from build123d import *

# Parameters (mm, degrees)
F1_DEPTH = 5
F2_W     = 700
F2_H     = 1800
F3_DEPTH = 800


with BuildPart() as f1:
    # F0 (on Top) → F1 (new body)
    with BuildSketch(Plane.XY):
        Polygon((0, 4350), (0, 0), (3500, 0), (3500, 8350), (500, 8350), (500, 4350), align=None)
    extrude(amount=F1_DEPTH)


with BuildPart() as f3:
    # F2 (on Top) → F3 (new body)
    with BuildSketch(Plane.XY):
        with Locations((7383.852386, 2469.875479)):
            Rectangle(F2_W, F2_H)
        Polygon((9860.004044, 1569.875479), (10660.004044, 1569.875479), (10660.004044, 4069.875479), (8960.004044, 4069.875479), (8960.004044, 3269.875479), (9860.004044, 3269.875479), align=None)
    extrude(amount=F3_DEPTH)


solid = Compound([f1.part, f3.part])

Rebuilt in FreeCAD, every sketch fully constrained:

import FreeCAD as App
import Part
import Sketcher
Q = App.Units.Quantity

doc = App.newDocument("Part")
params = doc.addObject("Spreadsheet::Sheet", "Params")
for row, (alias, value) in enumerate([
    ("sketch1_width", "3500 mm"),
    ("sketch1_width2", "3000 mm"),
    ("sketch1_height", "4350 mm"),
    ("sketch1_height2", "8350 mm"),
    ("pad1_length", "5 mm"),
    ("sketch2_width", "700 mm"),
    ("sketch2_width2", "800 mm"),
    ("sketch2_width3", "1700 mm"),
    ("sketch2_height", "1800 mm"),
    ("pad2_length", "800 mm"),
], start=1):
    params.set(f"A{row}", alias)
    params.set(f"B{row}", "=" + value)
    params.setAlias(f"B{row}", alias)

body = doc.addObject("PartDesign::Body", "Body")

# Sketch on XY plane
sketch1 = body.newObject("Sketcher::SketchObject", "Sketch")
sketch1.AttachmentSupport = (doc.getObject("XY_Plane"), [""])
sketch1.MapMode = "FlatFace"
sketch1.addGeometry(Part.LineSegment(App.Vector(0, 4350, 0), App.Vector(0, 0, 0)), False)
sketch1.addGeometry(Part.LineSegment(App.Vector(0, 0, 0), App.Vector(3500, 0, 0)), False)
sketch1.addGeometry(Part.LineSegment(App.Vector(3500, 0, 0), App.Vector(3500, 8350, 0)), False)
sketch1.addGeometry(Part.LineSegment(App.Vector(3500, 8350, 0), App.Vector(500, 8350, 0)), False)
sketch1.addGeometry(Part.LineSegment(App.Vector(500, 8350, 0), App.Vector(500, 4350, 0)), False)
sketch1.addGeometry(Part.LineSegment(App.Vector(500, 4350, 0), App.Vector(0, 4350, 0)), False)
sketch1.addConstraint(Sketcher.Constraint("Coincident", 0, 2, 1, 1))
sketch1.addConstraint(Sketcher.Constraint("Coincident", 1, 2, 2, 1))
sketch1.addConstraint(Sketcher.Constraint("Coincident", 2, 2, 3, 1))
sketch1.addConstraint(Sketcher.Constraint("Coincident", 3, 2, 4, 1))
sketch1.addConstraint(Sketcher.Constraint("Coincident", 4, 2, 5, 1))
sketch1.addConstraint(Sketcher.Constraint("Coincident", 5, 2, 0, 1))
sketch1.addConstraint(Sketcher.Constraint("Vertical", 0))
sketch1.addConstraint(Sketcher.Constraint("Horizontal", 1))
sketch1.addConstraint(Sketcher.Constraint("Vertical", 2))
sketch1.addConstraint(Sketcher.Constraint("Horizontal", 3))
sketch1.addConstraint(Sketcher.Constraint("Vertical", 4))
sketch1.addConstraint(Sketcher.Constraint("Horizontal", 5))
sketch1.addConstraint(Sketcher.Constraint("Coincident", 0, 2, -1, 1))
sketch1.addConstraint(Sketcher.Constraint("DistanceX", 1, 1, 1, 2, Q("3500 mm")))
sketch1.addConstraint(Sketcher.Constraint("DistanceX", 3, 2, 3, 1, Q("3000 mm")))
sketch1.addConstraint(Sketcher.Constraint("DistanceY", 0, 2, 0, 1, Q("4350 mm")))
sketch1.addConstraint(Sketcher.Constraint("DistanceY", 2, 1, 2, 2, Q("8350 mm")))
sketch1.setExpression("Constraints[13]", "Params.sketch1_width")
sketch1.setExpression("Constraints[14]", "Params.sketch1_width2")
sketch1.setExpression("Constraints[15]", "Params.sketch1_height")
sketch1.setExpression("Constraints[16]", "Params.sketch1_height2")
pad1 = body.newObject("PartDesign::Pad", "Pad")
pad1.Profile = sketch1
pad1.setExpression("Length", "Params.pad1_length")
body2 = doc.addObject("PartDesign::Body", "Body001")
body2.AllowCompound = True

# Sketch on XY plane
sketch2 = body2.newObject("Sketcher::SketchObject", "Sketch001")
sketch2.AttachmentSupport = (doc.getObject("XY_Plane001"), [""])
sketch2.MapMode = "FlatFace"
sketch2.addGeometry(Part.LineSegment(App.Vector(7033.852386, 3369.875479, 0), App.Vector(7033.852386, 1569.875479, 0)), False)
sketch2.addGeometry(Part.LineSegment(App.Vector(7033.852386, 1569.875479, 0), App.Vector(7733.852386, 1569.875479, 0)), False)
sketch2.addGeometry(Part.LineSegment(App.Vector(7733.852386, 1569.875479, 0), App.Vector(7733.852386, 3369.875479, 0)), False)
sketch2.addGeometry(Part.LineSegment(App.Vector(7733.852386, 3369.875479, 0), App.Vector(7033.852386, 3369.875479, 0)), False)
sketch2.addGeometry(Part.LineSegment(App.Vector(9860.004044, 1569.875479, 0), App.Vector(10660.004044, 1569.875479, 0)), False)
sketch2.addGeometry(Part.LineSegment(App.Vector(10660.004044, 1569.875479, 0), App.Vector(10660.004044, 4069.875479, 0)), False)
sketch2.addGeometry(Part.LineSegment(App.Vector(10660.004044, 4069.875479, 0), App.Vector(8960.004044, 4069.875479, 0)), False)
sketch2.addGeometry(Part.LineSegment(App.Vector(8960.004044, 4069.875479, 0), App.Vector(8960.004044, 3269.875479, 0)), False)
sketch2.addGeometry(Part.LineSegment(App.Vector(8960.004044, 3269.875479, 0), App.Vector(9860.004044, 3269.875479, 0)), False)
sketch2.addGeometry(Part.LineSegment(App.Vector(9860.004044, 3269.875479, 0), App.Vector(9860.004044, 1569.875479, 0)), False)
sketch2.addConstraint(Sketcher.Constraint("Coincident", 0, 2, 1, 1))
sketch2.addConstraint(Sketcher.Constraint("Coincident", 1, 2, 2, 1))
sketch2.addConstraint(Sketcher.Constraint("Coincident", 2, 2, 3, 1))
sketch2.addConstraint(Sketcher.Constraint("Coincident", 3, 2, 0, 1))
sketch2.addConstraint(Sketcher.Constraint("Coincident", 4, 2, 5, 1))
sketch2.addConstraint(Sketcher.Constraint("Coincident", 5, 2, 6, 1))
sketch2.addConstraint(Sketcher.Constraint("Coincident", 6, 2, 7, 1))
sketch2.addConstraint(Sketcher.Constraint("Coincident", 7, 2, 8, 1))
sketch2.addConstraint(Sketcher.Constraint("Coincident", 8, 2, 9, 1))
sketch2.addConstraint(Sketcher.Constraint("Coincident", 9, 2, 4, 1))
sketch2.addConstraint(Sketcher.Constraint("Vertical", 0))
sketch2.addConstraint(Sketcher.Constraint("Horizontal", 1))
sketch2.addConstraint(Sketcher.Constraint("Vertical", 2))
sketch2.addConstraint(Sketcher.Constraint("Horizontal", 3))
sketch2.addConstraint(Sketcher.Constraint("Horizontal", 4))
sketch2.addConstraint(Sketcher.Constraint("Vertical", 5))
sketch2.addConstraint(Sketcher.Constraint("Horizontal", 6))
sketch2.addConstraint(Sketcher.Constraint("Vertical", 7))
sketch2.addConstraint(Sketcher.Constraint("Horizontal", 8))
sketch2.addConstraint(Sketcher.Constraint("Vertical", 9))
sketch2.addConstraint(Sketcher.Constraint("Horizontal", 1, 2, 4, 2))
sketch2.addConstraint(Sketcher.Constraint("Equal", 4, 7))
sketch2.addConstraint(Sketcher.Constraint("Equal", 6, 9))
sketch2.addConstraint(Sketcher.Constraint("DistanceX", 1, 1, 1, 2, Q("700 mm")))
sketch2.addConstraint(Sketcher.Constraint("DistanceX", 4, 1, 4, 2, Q("800 mm")))
sketch2.addConstraint(Sketcher.Constraint("DistanceX", 6, 2, 6, 1, Q("1700 mm")))
sketch2.addConstraint(Sketcher.Constraint("DistanceY", 0, 2, 0, 1, Q("1800 mm")))
sketch2.addConstraint(Sketcher.Constraint("DistanceY", -1, 1, 0, 2, Q("1569.875479 mm")))
sketch2.addConstraint(Sketcher.Constraint("DistanceX", -1, 1, 0, 2, Q("7033.852386 mm")))
sketch2.addConstraint(Sketcher.Constraint("DistanceX", -1, 1, 4, 2, Q("10660.004044 mm")))
sketch2.setExpression("Constraints[23]", "Params.sketch2_width")
sketch2.setExpression("Constraints[24]", "Params.sketch2_width2")
sketch2.setExpression("Constraints[25]", "Params.sketch2_width3")
sketch2.setExpression("Constraints[26]", "Params.sketch2_height")
pad2 = body2.newObject("PartDesign::Pad", "Pad001")
pad2.Profile = sketch2
pad2.setExpression("Length", "Params.pad2_length")

doc.recompute()
